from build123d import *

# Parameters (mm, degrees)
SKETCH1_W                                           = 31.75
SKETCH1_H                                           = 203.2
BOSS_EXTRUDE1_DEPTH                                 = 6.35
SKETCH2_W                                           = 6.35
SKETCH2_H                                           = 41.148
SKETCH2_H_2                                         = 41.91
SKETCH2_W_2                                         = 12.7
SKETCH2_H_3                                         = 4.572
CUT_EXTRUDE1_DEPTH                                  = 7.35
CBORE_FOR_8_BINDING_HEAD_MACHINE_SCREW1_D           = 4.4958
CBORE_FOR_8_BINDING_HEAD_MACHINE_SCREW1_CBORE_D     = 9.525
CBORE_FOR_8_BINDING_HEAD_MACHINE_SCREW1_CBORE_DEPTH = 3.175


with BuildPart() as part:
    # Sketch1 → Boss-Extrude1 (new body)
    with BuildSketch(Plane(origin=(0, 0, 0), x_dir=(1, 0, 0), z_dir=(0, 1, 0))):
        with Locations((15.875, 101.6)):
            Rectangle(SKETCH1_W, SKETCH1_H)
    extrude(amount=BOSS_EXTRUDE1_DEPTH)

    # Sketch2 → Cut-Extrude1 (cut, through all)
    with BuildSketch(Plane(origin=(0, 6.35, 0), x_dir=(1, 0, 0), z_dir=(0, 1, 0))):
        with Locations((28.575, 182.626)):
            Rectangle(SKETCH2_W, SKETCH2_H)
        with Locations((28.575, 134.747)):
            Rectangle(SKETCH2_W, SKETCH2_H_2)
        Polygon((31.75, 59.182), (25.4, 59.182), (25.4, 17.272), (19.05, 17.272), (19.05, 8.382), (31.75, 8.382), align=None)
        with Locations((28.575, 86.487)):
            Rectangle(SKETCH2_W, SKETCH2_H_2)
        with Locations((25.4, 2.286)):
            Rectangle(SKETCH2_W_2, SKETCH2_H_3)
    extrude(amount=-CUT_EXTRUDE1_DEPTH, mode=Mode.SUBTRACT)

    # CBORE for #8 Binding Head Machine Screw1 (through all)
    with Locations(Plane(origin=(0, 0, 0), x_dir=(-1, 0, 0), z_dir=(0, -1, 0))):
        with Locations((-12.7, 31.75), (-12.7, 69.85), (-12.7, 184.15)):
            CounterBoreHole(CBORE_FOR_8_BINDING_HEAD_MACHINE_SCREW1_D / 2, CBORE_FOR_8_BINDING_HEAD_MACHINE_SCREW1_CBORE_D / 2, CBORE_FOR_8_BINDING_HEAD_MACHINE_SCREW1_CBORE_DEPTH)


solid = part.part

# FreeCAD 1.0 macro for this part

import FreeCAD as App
import Part
import Sketcher
from FreeCAD import Vector
Q = App.Units.Quantity

doc = App.newDocument("Part")
body = doc.addObject("PartDesign::Body", "Body")

# Sketch on XZ plane
sketch1 = body.newObject("Sketcher::SketchObject", "Sketch")
sketch1.AttachmentSupport = (doc.getObject("XZ_Plane"), [""])
sketch1.MapMode = "FlatFace"
sketch1.addGeometry(Part.LineSegment(Vector(0, -203, 0), Vector(0, 0, 0)), False)
sketch1.addGeometry(Part.LineSegment(Vector(0, 0, 0), Vector(32, 0, 0)), False)
sketch1.addGeometry(Part.LineSegment(Vector(32, 0, 0), Vector(32, -203, 0)), False)
sketch1.addGeometry(Part.LineSegment(Vector(32, -203, 0), Vector(0, -203, 0)), False)
sketch1.addConstraint(Sketcher.Constraint("Coincident", 0, 2, 1, 1))
sketch1.addConstraint(Sketcher.Constraint("Coincident", 1, 2, 2, 1))
sketch1.addConstraint(Sketcher.Constraint("Coincident", 2, 2, 3, 1))
sketch1.addConstraint(Sketcher.Constraint("Coincident", 3, 2, 0, 1))
sketch1.addConstraint(Sketcher.Constraint("Vertical", 0))
sketch1.addConstraint(Sketcher.Constraint("Horizontal", 1))
sketch1.addConstraint(Sketcher.Constraint("Vertical", 2))
sketch1.addConstraint(Sketcher.Constraint("Horizontal", 3))
sketch1.addConstraint(Sketcher.Constraint("Coincident", 0, 2, -1, 1))
sketch1.addConstraint(Sketcher.Constraint("DistanceY", 0, 1, 0, 2, Q("8 in")))
sketch1.addConstraint(Sketcher.Constraint("DistanceX", 1, 1, 1, 2, Q("1.25 in")))
pad1 = body.newObject("PartDesign::Pad", "Pad")
pad1.Profile = sketch1
pad1.Length = Q("0.25 in")
pad1.Reversed = True

# Sketch on XZ plane
sketch2 = body.newObject("Sketcher::SketchObject", "Sketch001")
sketch2.AttachmentSupport = (doc.getObject("XZ_Plane"), [""])
sketch2.MapMode = "FlatFace"
sketch2.AttachmentOffset = App.Placement(Vector(0, 0, -0.25 * 25.4), App.Rotation())
sketch2.addGeometry(Part.LineSegment(Vector(25.4, -203.2, 0), Vector(25.4, -162.1, 0)), False)
sketch2.addGeometry(Part.LineSegment(Vector(25.4, -162.1, 0), Vector(31.8, -162.1, 0)), False)
sketch2.addGeometry(Part.LineSegment(Vector(31.8, -162.1, 0), Vector(31.8, -203.2, 0)), False)
sketch2.addGeometry(Part.LineSegment(Vector(31.8, -203.2, 0), Vector(25.4, -203.2, 0)), False)
sketch2.addGeometry(Part.LineSegment(Vector(25.4, -155.7, 0), Vector(25.4, -113.8, 0)), False)
sketch2.addGeometry(Part.LineSegment(Vector(25.4, -113.8, 0), Vector(31.8, -113.8, 0)), False)
sketch2.addGeometry(Part.LineSegment(Vector(31.8, -113.8, 0), Vector(31.8, -155.7, 0)), False)
sketch2.addGeometry(Part.LineSegment(Vector(31.8, -155.7, 0), Vector(25.4, -155.7, 0)), False)
sketch2.addGeometry(Part.LineSegment(Vector(31.8, -59.2, 0), Vector(25.4, -59.2, 0)), False)
sketch2.addGeometry(Part.LineSegment(Vector(25.4, -59.2, 0), Vector(25.4, -17.3, 0)), False)
sketch2.addGeometry(Part.LineSegment(Vector(25.4, -17.3, 0), Vector(19.1, -17.3, 0)), False)
sketch2.addGeometry(Part.LineSegment(Vector(19.1, -17.3, 0), Vector(19.1, -8.4, 0)), False)
sketch2.addGeometry(Part.LineSegment(Vector(19.1, -8.4, 0), Vector(31.8, -8.4, 0)), False)
sketch2.addGeometry(Part.LineSegment(Vector(31.8, -8.4, 0), Vector(31.8, -59.2, 0)), False)
sketch2.addGeometry(Part.LineSegment(Vector(25.4, -107.4, 0), Vector(25.4, -65.5, 0)), False)
sketch2.addGeometry(Part.LineSegment(Vector(25.4, -65.5, 0), Vector(31.8, -65.5, 0)), False)
sketch2.addGeometry(Part.LineSegment(Vector(31.8, -65.5, 0), Vector(31.8, -107.4, 0)), False)
sketch2.addGeometry(Part.LineSegment(Vector(31.8, -107.4, 0), Vector(25.4, -107.4, 0)), False)
sketch2.addGeometry(Part.LineSegment(Vector(19.1, -4.6, 0), Vector(19.1, 0, 0)), False)
sketch2.addGeometry(Part.LineSegment(Vector(19.1, 0, 0), Vector(31.8, 0, 0)), False)
sketch2.addGeometry(Part.LineSegment(Vector(31.8, 0, 0), Vector(31.8, -4.6, 0)), False)
sketch2.addGeometry(Part.LineSegment(Vector(31.8, -4.6, 0), Vector(19.1, -4.6, 0)), False)
sketch2.addConstraint(Sketcher.Constraint("Coincident", 0, 2, 1, 1))
sketch2.addConstraint(Sketcher.Constraint("Coincident", 1, 2, 2, 1))
sketch2.addConstraint(Sketcher.Constraint("Coincident", 2, 2, 3, 1))
sketch2.addConstraint(Sketcher.Constraint("Coincident", 3, 2, 0, 1))
sketch2.addConstraint(Sketcher.Constraint("Coincident", 4, 2, 5, 1))
sketch2.addConstraint(Sketcher.Constraint("Coincident", 5, 2, 6, 1))
sketch2.addConstraint(Sketcher.Constraint("Coincident", 6, 2, 7, 1))
sketch2.addConstraint(Sketcher.Constraint("Coincident", 7, 2, 4, 1))
sketch2.addConstraint(Sketcher.Constraint("Coincident", 8, 2, 9, 1))
sketch2.addConstraint(Sketcher.Constraint("Coincident", 9, 2, 10, 1))
sketch2.addConstraint(Sketcher.Constraint("Coincident", 10, 2, 11, 1))
sketch2.addConstraint(Sketcher.Constraint("Coincident", 11, 2, 12, 1))
sketch2.addConstraint(Sketcher.Constraint("Coincident", 12, 2, 13, 1))
sketch2.addConstraint(Sketcher.Constraint("Coincident", 13, 2, 8, 1))
sketch2.addConstraint(Sketcher.Constraint("Coincident", 14, 2, 15, 1))
sketch2.addConstraint(Sketcher.Constraint("Coincident", 15, 2, 16, 1))
sketch2.addConstraint(Sketcher.Constraint("Coincident", 16, 2, 17, 1))
sketch2.addConstraint(Sketcher.Constraint("Coincident", 17, 2, 14, 1))
sketch2.addConstraint(Sketcher.Constraint("Coincident", 18, 2, 19, 1))
sketch2.addConstraint(Sketcher.Constraint("Coincident", 19, 2, 20, 1))
sketch2.addConstraint(Sketcher.Constraint("Coincident", 20, 2, 21, 1))
sketch2.addConstraint(Sketcher.Constraint("Coincident", 21, 2, 18, 1))
sketch2.addConstraint(Sketcher.Constraint("Vertical", 0))
sketch2.addConstraint(Sketcher.Constraint("Horizontal", 1))
sketch2.addConstraint(Sketcher.Constraint("Vertical", 2))
sketch2.addConstraint(Sketcher.Constraint("Horizontal", 3))
sketch2.addConstraint(Sketcher.Constraint("Vertical", 4))
sketch2.addConstraint(Sketcher.Constraint("Horizontal", 5))
sketch2.addConstraint(Sketcher.Constraint("Vertical", 6))
sketch2.addConstraint(Sketcher.Constraint("Horizontal", 7))
sketch2.addConstraint(Sketcher.Constraint("Horizontal", 8))
sketch2.addConstraint(Sketcher.Constraint("Vertical", 9))
sketch2.addConstraint(Sketcher.Constraint("Horizontal", 10))
sketch2.addConstraint(Sketcher.Constraint("Vertical", 11))
sketch2.addConstraint(Sketcher.Constraint("Horizontal", 12))
sketch2.addConstraint(Sketcher.Constraint("Vertical", 13))
sketch2.addConstraint(Sketcher.Constraint("Vertical", 14))
sketch2.addConstraint(Sketcher.Constraint("Horizontal", 15))
sketch2.addConstraint(Sketcher.Constraint("Vertical", 16))
sketch2.addConstraint(Sketcher.Constraint("Horizontal", 17))
sketch2.addConstraint(Sketcher.Constraint("Vertical", 18))
sketch2.addConstraint(Sketcher.Constraint("Horizontal", 19))
sketch2.addConstraint(Sketcher.Constraint("Vertical", 20))
sketch2.addConstraint(Sketcher.Constraint("Horizontal", 21))
sketch2.addConstraint(Sketcher.Constraint("PointOnObject", 18, 2, -1))
sketch2.addConstraint(Sketcher.Constraint("Vertical", 3, 2, 4, 2))
sketch2.addConstraint(Sketcher.Constraint("Vertical", 2, 2, 5, 2))
sketch2.addConstraint(Sketcher.Constraint("Vertical", 7, 2, 8, 2))
sketch2.addConstraint(Sketcher.Constraint("Vertical", 6, 2, 12, 2))
sketch2.addConstraint(Sketcher.Constraint("Vertical", 9, 2, 14, 2))
sketch2.addConstraint(Sketcher.Constraint("Vertical", 13, 2, 15, 2))
sketch2.addConstraint(Sketcher.Constraint("Vertical", 11, 2, 18, 2))
sketch2.addConstraint(Sketcher.Constraint("Vertical", 16, 2, 19, 2))
sketch2.addConstraint(Sketcher.Constraint("Equal", 8, 10))
sketch2.addConstraint(Sketcher.Constraint("Equal", 6, 9))
sketch2.addConstraint(Sketcher.Constraint("Equal", 9, 14))
sketch2.addConstraint(Sketcher.Constraint("DistanceY", 13, 2, 13, 1, Q("2 in")))
sketch2.addConstraint(Sketcher.Constraint("DistanceX", 12, 1, 12, 2, Q("0.5 in")))
sketch2.addConstraint(Sketcher.Constraint("DistanceX", -1, 1, 0, 2, Q("1 in")))
sketch2.addConstraint(Sketcher.Constraint("DistanceY", 2, 2, -1, 1, Q("8 in")))
sketch2.addConstraint(Sketcher.Constraint("DistanceY", 0, 1, 0, 2, Q("1.62 in")))
sketch2.addConstraint(Sketcher.Constraint("DistanceY", 4, 1, 4, 2, Q("1.65 in")))
sketch2.addConstraint(Sketcher.Constraint("DistanceY", 18, 1, 18, 2, Q("0.18 in")))
sketch2.addConstraint(Sketcher.Constraint("DistanceY", 0, 2, 4, 2, Q("1.9 in")))
sketch2.addConstraint(Sketcher.Constraint("DistanceY", 7, 2, 8, 2, Q("3.8 in")))
sketch2.addConstraint(Sketcher.Constraint("DistanceY", 14, 2, 9, 2, Q("1.9 in")))
pocket1 = body.newObject("PartDesign::Pocket", "Pocket")
pocket1.Profile = sketch2
pocket1.Type = "ThroughAll"
pocket1.Reversed = True

# Sketch on XZ plane
sketch3 = body.newObject("Sketcher::SketchObject", "Sketch002")
sketch3.AttachmentSupport = (doc.getObject("XZ_Plane"), [""])
sketch3.MapMode = "FlatFace"
sketch3.addGeometry(Part.Circle(Vector(12.7, -31.8, 0), Vector(0, 0, 1), 2.2), False)
sketch3.addGeometry(Part.Circle(Vector(12.7, -69.8, 0), Vector(0, 0, 1), 2.2), False)
sketch3.addGeometry(Part.Circle(Vector(12.7, -184.2, 0), Vector(0, 0, 1), 2.2), False)
sketch3.addConstraint(Sketcher.Constraint("Equal", 0, 1))
sketch3.addConstraint(Sketcher.Constraint("Equal", 1, 2))
sketch3.addConstraint(Sketcher.Constraint("Vertical", 0, 3, 1, 3))
sketch3.addConstraint(Sketcher.Constraint("Vertical", 1, 3, 2, 3))
sketch3.addConstraint(Sketcher.Constraint("Diameter", 0, Q("0.177 in")))
sketch3.addConstraint(Sketcher.Constraint("DistanceY", 2, 3, 0, 3, Q("6 in")))
sketch3.addConstraint(Sketcher.Constraint("DistanceX", -1, 1, 0, 3, Q("0.5 in")))
sketch3.addConstraint(Sketcher.Constraint("DistanceY", 1, 3, 0, 3, Q("1.5 in")))
sketch3.addConstraint(Sketcher.Constraint("DistanceY", 0, 3, -1, 1, Q("1.25 in")))
doc.recompute()
hole = body.newObject("PartDesign::Hole", "Hole")
hole.Profile = sketch3
hole.ThreadType = "None"
hole.Diameter = Q("0.177 in")
hole.DepthType = "ThroughAll"
hole.HoleCutType = "Counterbore"
hole.HoleCutDiameter = Q("0.375 in")
hole.HoleCutDepth = Q("0.125 in")

doc.recompute()
